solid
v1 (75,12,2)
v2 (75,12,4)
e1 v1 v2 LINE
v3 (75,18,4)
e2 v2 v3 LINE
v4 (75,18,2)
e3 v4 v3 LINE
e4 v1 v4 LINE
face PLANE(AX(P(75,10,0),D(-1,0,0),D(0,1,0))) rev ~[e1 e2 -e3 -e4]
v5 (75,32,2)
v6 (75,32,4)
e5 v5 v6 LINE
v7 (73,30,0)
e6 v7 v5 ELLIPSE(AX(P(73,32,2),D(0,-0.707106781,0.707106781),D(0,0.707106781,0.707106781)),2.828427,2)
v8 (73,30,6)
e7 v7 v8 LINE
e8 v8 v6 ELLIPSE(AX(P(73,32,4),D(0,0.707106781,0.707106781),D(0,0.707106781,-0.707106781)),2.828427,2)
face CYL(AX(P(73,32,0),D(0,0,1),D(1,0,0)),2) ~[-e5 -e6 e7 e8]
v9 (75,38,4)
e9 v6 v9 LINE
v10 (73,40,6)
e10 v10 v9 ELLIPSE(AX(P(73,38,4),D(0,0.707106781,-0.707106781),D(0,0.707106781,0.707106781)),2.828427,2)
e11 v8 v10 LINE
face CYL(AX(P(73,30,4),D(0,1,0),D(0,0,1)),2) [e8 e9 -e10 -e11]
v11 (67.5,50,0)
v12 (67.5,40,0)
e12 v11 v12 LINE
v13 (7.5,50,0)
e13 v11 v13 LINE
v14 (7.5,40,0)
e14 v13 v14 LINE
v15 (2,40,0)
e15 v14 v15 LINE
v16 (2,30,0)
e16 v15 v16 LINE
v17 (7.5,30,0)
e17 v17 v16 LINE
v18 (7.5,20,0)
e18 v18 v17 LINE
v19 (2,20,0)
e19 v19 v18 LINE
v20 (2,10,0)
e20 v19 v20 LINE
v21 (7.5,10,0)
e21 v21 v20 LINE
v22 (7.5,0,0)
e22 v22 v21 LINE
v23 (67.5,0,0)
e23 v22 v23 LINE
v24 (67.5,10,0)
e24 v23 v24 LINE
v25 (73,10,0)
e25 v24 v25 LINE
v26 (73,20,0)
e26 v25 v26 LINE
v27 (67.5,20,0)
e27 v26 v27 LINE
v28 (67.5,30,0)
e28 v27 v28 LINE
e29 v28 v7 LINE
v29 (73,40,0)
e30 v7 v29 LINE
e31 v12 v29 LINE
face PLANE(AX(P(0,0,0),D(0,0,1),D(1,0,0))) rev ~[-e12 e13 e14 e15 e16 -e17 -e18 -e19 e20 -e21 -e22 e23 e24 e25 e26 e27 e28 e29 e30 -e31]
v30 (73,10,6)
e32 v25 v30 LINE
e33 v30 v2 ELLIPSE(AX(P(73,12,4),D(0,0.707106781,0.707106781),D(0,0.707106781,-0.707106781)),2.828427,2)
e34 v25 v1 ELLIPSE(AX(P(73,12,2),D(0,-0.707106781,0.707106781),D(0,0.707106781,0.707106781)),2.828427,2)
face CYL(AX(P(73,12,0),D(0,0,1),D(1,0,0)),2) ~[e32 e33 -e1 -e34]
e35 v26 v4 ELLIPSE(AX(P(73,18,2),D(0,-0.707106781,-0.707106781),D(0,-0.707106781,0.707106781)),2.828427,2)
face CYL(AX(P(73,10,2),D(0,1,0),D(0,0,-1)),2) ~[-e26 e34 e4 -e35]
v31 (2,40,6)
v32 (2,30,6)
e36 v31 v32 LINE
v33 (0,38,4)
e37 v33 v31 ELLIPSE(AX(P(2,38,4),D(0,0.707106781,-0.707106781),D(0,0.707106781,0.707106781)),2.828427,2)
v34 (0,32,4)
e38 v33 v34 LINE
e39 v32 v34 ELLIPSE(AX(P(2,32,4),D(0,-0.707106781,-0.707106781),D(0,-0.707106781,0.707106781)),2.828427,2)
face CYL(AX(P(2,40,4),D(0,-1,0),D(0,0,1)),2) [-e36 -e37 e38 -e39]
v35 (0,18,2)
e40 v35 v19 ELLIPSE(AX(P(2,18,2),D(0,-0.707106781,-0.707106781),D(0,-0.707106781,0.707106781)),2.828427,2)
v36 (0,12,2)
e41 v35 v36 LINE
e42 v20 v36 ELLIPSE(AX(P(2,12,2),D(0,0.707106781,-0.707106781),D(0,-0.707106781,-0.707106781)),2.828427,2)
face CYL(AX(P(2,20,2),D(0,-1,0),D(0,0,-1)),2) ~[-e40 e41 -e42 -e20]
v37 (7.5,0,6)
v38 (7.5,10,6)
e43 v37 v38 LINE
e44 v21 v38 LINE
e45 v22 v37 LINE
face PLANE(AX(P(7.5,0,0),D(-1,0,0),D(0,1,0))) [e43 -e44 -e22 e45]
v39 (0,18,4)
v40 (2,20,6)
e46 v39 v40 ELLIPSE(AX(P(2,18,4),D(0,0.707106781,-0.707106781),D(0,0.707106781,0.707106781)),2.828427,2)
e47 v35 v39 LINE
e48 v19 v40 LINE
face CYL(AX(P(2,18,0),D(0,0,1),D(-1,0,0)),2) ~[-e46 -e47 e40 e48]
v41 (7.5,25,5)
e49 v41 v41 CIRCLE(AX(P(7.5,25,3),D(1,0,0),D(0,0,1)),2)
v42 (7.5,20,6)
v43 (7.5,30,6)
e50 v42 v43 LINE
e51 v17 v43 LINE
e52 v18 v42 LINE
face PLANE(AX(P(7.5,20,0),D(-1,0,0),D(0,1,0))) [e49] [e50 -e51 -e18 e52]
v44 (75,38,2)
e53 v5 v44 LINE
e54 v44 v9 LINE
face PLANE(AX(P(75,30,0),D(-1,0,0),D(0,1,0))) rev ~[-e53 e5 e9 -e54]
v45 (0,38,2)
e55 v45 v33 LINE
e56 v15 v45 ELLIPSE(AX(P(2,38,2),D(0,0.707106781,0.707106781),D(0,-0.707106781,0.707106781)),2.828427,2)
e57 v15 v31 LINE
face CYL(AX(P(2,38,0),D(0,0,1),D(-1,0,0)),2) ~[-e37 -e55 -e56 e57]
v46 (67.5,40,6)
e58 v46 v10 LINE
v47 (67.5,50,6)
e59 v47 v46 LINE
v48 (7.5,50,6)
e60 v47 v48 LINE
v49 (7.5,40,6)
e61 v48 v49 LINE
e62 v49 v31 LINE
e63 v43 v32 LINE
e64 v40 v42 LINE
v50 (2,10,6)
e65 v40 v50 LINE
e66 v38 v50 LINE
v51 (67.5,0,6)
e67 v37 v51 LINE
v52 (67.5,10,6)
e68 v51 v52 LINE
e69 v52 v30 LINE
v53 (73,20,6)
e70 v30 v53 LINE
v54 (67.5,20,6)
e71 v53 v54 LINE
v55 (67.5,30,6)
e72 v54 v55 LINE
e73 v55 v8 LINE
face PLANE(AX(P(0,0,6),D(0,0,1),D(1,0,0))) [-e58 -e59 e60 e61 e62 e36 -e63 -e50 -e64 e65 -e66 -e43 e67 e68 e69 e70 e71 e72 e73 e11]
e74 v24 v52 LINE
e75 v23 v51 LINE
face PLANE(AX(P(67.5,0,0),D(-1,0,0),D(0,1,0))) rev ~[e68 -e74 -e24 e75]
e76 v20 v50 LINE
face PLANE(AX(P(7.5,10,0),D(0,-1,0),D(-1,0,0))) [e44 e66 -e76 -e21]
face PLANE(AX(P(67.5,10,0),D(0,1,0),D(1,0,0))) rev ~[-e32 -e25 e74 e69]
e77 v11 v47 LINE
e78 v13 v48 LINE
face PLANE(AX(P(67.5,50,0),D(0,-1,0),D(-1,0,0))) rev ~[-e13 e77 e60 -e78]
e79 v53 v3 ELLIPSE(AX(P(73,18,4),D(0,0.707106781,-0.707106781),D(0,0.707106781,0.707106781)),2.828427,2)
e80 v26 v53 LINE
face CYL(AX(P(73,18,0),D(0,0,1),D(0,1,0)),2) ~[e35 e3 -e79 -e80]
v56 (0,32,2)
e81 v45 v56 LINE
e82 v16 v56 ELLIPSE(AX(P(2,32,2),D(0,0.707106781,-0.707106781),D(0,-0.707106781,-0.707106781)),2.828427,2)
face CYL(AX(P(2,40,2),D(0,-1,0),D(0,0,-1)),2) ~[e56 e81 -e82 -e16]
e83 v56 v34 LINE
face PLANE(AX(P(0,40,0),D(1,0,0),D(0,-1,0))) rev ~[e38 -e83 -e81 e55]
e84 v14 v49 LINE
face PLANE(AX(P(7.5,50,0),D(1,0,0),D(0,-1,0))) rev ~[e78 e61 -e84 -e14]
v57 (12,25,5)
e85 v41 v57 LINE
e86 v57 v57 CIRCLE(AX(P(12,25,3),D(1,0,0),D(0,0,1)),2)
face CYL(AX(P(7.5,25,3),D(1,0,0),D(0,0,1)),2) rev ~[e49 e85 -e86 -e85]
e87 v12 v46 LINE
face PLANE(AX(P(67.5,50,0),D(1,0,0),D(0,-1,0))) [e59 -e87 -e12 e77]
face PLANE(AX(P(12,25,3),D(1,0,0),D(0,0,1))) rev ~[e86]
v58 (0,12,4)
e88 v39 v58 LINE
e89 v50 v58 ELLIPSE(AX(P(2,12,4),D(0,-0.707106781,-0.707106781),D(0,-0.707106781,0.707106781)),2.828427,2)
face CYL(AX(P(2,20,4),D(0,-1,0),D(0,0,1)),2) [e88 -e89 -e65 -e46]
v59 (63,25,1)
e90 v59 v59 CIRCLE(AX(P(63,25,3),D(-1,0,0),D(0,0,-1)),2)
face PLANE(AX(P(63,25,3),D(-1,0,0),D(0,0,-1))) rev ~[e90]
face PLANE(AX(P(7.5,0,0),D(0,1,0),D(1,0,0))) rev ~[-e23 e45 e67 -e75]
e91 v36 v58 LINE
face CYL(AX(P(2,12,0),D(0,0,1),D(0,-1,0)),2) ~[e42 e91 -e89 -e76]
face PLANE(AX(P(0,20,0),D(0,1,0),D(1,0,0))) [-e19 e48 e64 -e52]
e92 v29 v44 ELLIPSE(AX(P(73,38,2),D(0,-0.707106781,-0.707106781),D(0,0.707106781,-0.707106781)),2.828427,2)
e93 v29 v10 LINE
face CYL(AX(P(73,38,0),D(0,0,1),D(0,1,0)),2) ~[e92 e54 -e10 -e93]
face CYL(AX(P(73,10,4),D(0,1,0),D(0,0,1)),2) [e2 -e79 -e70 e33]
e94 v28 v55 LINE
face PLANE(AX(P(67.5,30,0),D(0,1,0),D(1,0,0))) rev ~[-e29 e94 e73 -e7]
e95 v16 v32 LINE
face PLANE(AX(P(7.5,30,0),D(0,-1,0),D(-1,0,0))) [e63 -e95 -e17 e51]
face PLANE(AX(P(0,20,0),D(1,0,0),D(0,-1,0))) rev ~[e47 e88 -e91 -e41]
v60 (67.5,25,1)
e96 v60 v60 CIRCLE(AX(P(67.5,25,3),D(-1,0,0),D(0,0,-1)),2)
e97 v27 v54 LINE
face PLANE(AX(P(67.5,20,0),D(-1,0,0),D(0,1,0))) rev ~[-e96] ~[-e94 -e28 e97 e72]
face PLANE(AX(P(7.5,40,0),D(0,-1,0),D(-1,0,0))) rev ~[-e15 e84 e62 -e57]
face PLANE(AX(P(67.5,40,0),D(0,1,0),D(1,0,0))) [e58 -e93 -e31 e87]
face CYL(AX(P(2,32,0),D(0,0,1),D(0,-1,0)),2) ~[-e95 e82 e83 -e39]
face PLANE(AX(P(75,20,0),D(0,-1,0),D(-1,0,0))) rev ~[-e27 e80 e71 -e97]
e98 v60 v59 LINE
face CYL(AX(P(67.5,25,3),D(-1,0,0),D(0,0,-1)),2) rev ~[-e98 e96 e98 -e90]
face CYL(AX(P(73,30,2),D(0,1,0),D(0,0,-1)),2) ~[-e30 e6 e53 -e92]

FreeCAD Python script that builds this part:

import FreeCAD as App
import Part
import Sketcher

V = App.Vector


def edges_at(feature, points):
    """Names of the edges that pass closest to the given points."""
    edges = feature.Shape.Edges
    near = lambda p: min(range(len(edges)), key=lambda i: edges[i].distToShape(Part.Vertex(*p))[0])
    return sorted({f"Edge{near(p) + 1}" for p in points})

doc = App.newDocument("Part")
body = doc.addObject("PartDesign::Body", "Body")

# Sketch on XY plane
sketch1 = body.newObject("Sketcher::SketchObject", "Sketch")
sketch1.AttachmentSupport = (doc.getObject("XY_Plane"), [""])
sketch1.MapMode = "FlatFace"
sketch1.addGeometry([
    Part.LineSegment(V(8, 10, 0), V(8, 0, 0)),  # 0
    Part.LineSegment(V(8, 0, 0), V(68, 0, 0)),  # 1
    Part.LineSegment(V(68, 0, 0), V(68, 10, 0)),  # 2
    Part.LineSegment(V(68, 10, 0), V(75, 10, 0)),  # 3
    Part.LineSegment(V(75, 10, 0), V(75, 20, 0)),  # 4
    Part.LineSegment(V(75, 20, 0), V(68, 20, 0)),  # 5
    Part.LineSegment(V(68, 20, 0), V(68, 30, 0)),  # 6
    Part.LineSegment(V(68, 30, 0), V(75, 30, 0)),  # 7
    Part.LineSegment(V(75, 30, 0), V(75, 40, 0)),  # 8
    Part.LineSegment(V(75, 40, 0), V(68, 40, 0)),  # 9
    Part.LineSegment(V(68, 40, 0), V(68, 50, 0)),  # 10
    Part.LineSegment(V(68, 50, 0), V(8, 50, 0)),  # 11
    Part.LineSegment(V(8, 50, 0), V(8, 40, 0)),  # 12
    Part.LineSegment(V(8, 40, 0), V(0, 40, 0)),  # 13
    Part.LineSegment(V(0, 40, 0), V(0, 30, 0)),  # 14
    Part.LineSegment(V(0, 30, 0), V(8, 30, 0)),  # 15
    Part.LineSegment(V(8, 30, 0), V(8, 20, 0)),  # 16
    Part.LineSegment(V(8, 20, 0), V(0, 20, 0)),  # 17
    Part.LineSegment(V(0, 20, 0), V(0, 10, 0)),  # 18
    Part.LineSegment(V(0, 10, 0), V(8, 10, 0)),  # 19
], False)
sketch1.addConstraint([
    Sketcher.Constraint("Coincident", 0, 2, 1, 1),
    Sketcher.Constraint("Coincident", 1, 2, 2, 1),
    Sketcher.Constraint("Coincident", 2, 2, 3, 1),
    Sketcher.Constraint("Coincident", 3, 2, 4, 1),
    Sketcher.Constraint("Coincident", 4, 2, 5, 1),
    Sketcher.Constraint("Coincident", 5, 2, 6, 1),
    Sketcher.Constraint("Coincident", 6, 2, 7, 1),
    Sketcher.Constraint("Coincident", 7, 2, 8, 1),
    Sketcher.Constraint("Coincident", 8, 2, 9, 1),
    Sketcher.Constraint("Coincident", 9, 2, 10, 1),
    Sketcher.Constraint("Coincident", 10, 2, 11, 1),
    Sketcher.Constraint("Coincident", 11, 2, 12, 1),
    Sketcher.Constraint("Coincident", 12, 2, 13, 1),
    Sketcher.Constraint("Coincident", 13, 2, 14, 1),
    Sketcher.Constraint("Coincident", 14, 2, 15, 1),
    Sketcher.Constraint("Coincident", 15, 2, 16, 1),
    Sketcher.Constraint("Coincident", 16, 2, 17, 1),
    Sketcher.Constraint("Coincident", 17, 2, 18, 1),
    Sketcher.Constraint("Coincident", 18, 2, 19, 1),
    Sketcher.Constraint("Coincident", 19, 2, 0, 1),
    Sketcher.Constraint("Vertical", 0),
    Sketcher.Constraint("Horizontal", 1),
    Sketcher.Constraint("Vertical", 2),
    Sketcher.Constraint("Horizontal", 3),
    Sketcher.Constraint("Vertical", 4),
    Sketcher.Constraint("Horizontal", 5),
    Sketcher.Constraint("Vertical", 6),
    Sketcher.Constraint("Horizontal", 7),
    Sketcher.Constraint("Vertical", 8),
    Sketcher.Constraint("Horizontal", 9),
    Sketcher.Constraint("Vertical", 10),
    Sketcher.Constraint("Horizontal", 11),
    Sketcher.Constraint("Vertical", 12),
    Sketcher.Constraint("Horizontal", 13),
    Sketcher.Constraint("Vertical", 14),
    Sketcher.Constraint("Horizontal", 15),
    Sketcher.Constraint("Vertical", 16),
    Sketcher.Constraint("Horizontal", 17),
    Sketcher.Constraint("Vertical", 18),
    Sketcher.Constraint("Horizontal", 19),
    Sketcher.Constraint("PointOnObject", 0, 2, -1),
    Sketcher.Constraint("PointOnObject", 13, 2, -2),
    Sketcher.Constraint("PointOnObject", 17, 2, -2),
    Sketcher.Constraint("Horizontal", 9, 2, 12, 2),
    Sketcher.Constraint("Horizontal", 7, 2, 14, 2),
    Sketcher.Constraint("Horizontal", 5, 2, 16, 2),
    Sketcher.Constraint("Horizontal", 3, 2, 18, 2),
    Sketcher.Constraint("Vertical", 2, 2, 5, 2),
    Sketcher.Constraint("Vertical", 4, 2, 7, 2),
    Sketcher.Constraint("Vertical", 6, 2, 9, 2),
    Sketcher.Constraint("Vertical", 0, 2, 11, 2),
    Sketcher.Constraint("Vertical", 12, 2, 15, 2),
    Sketcher.Constraint("Equal", 9, 13),
    Sketcher.Constraint("Equal", 2, 4),
    Sketcher.Constraint("Equal", 4, 6),
    Sketcher.Constraint("Equal", 6, 8),
    Sketcher.Constraint("Equal", 8, 10),
    Sketcher.Constraint("DistanceY", 0, 2, 0, 1, 10.0),
    Sketcher.Constraint("DistanceX", 3, 1, 3, 2, 7.5),
    Sketcher.Constraint("DistanceX", -1, 1, 3, 2, 75.0),
])
pad1 = body.newObject("PartDesign::Pad", "Pad")
pad1.Profile = sketch1
pad1.Length = 6

# Sketch on YZ plane
sketch2 = body.newObject("Sketcher::SketchObject", "Sketch001")
sketch2.AttachmentSupport = (doc.getObject("YZ_Plane"), [""])
sketch2.MapMode = "FlatFace"
sketch2.AttachmentOffset = App.Placement(V(0, 0, 67.5), App.Rotation())
sketch2.addGeometry(Part.Circle(V(25, 3, 0), V(0, 0, 1), 2), False)
sketch2.addConstraint([
    Sketcher.Constraint("Diameter", 0, 4.0),
    Sketcher.Constraint("DistanceX", -1, 1, 0, 3, 25.0),
    Sketcher.Constraint("DistanceY", -1, 1, 0, 3, 3.0),
])
doc.recompute()
hole = body.newObject("PartDesign::Hole", "Hole")
hole.Profile = sketch2
hole.ThreadType = "None"
hole.Diameter = 4
hole.DepthType = "Dimension"
hole.Depth = 4.5
hole.DrillPoint = "Flat"

# Sketch on YZ plane
sketch3 = body.newObject("Sketcher::SketchObject", "Sketch002")
sketch3.AttachmentSupport = (doc.getObject("YZ_Plane"), [""])
sketch3.MapMode = "FlatFace"
sketch3.AttachmentOffset = App.Placement(V(0, 0, 7.5), App.Rotation())
sketch3.addGeometry(Part.Circle(V(25, 3, 0), V(0, 0, 1), 2), False)
sketch3.addConstraint([
    Sketcher.Constraint("Diameter", 0, 4.0),
    Sketcher.Constraint("DistanceX", -1, 1, 0, 3, 25.0),
    Sketcher.Constraint("DistanceY", -1, 1, 0, 3, 3.0),
])
doc.recompute()
hole2 = body.newObject("PartDesign::Hole", "Hole001")
hole2.Profile = sketch3
hole2.ThreadType = "None"
hole2.Diameter = 4
hole2.DepthType = "Dimension"
hole2.Depth = 4.5
hole2.DrillPoint = "Flat"
hole2.Reversed = True
doc.recompute()

fillet = body.newObject("PartDesign::Fillet", "Fillet")
fillet.Base = (hole2, edges_at(hole2, [
    (75, 35, 0),
    (75, 35, 6),
    (75, 40, 3),
    (75, 30, 3),
    (75, 20, 3),
    (75, 15, 6),
    (75, 15, 0),
    (75, 10, 3),
    (0, 35, 0),
    (0, 40, 3),
    (0, 35, 6),
    (0, 30, 3),
    (0, 20, 3),
    (0, 15, 0),
    (0, 10, 3),
    (0, 15, 6),
]))
fillet.Radius = 2

doc.recompute()
